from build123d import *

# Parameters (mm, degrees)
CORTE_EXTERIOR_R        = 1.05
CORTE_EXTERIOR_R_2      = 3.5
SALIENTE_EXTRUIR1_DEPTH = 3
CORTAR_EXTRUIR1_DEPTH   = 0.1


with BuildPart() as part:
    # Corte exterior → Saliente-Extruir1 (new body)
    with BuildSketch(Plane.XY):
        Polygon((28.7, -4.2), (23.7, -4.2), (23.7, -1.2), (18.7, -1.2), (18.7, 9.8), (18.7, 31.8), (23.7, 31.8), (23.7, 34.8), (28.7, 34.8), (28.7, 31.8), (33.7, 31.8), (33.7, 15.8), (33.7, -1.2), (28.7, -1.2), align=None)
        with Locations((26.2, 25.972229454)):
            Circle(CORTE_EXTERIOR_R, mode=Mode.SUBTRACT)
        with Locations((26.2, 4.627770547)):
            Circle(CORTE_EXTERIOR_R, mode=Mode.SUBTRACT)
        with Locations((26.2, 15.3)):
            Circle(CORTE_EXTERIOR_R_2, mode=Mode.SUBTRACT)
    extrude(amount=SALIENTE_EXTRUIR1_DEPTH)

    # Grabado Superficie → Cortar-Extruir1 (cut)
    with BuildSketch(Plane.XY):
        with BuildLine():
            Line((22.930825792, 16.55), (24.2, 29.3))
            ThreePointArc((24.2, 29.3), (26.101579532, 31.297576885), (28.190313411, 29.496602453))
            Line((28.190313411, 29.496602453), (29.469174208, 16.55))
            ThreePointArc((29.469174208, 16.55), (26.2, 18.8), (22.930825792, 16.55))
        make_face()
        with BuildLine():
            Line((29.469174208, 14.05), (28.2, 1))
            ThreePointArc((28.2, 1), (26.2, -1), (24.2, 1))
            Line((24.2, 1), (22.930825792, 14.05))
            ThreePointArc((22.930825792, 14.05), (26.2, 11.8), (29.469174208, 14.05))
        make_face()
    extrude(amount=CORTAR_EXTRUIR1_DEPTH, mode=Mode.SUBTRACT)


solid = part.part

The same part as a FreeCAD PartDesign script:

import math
import FreeCAD as App
import Part
import Sketcher

V = App.Vector
Q = App.Units.Quantity


def add_polygon(sketch, points):
    """Adds a closed chain of lines whose ends are joined by coincident constraints."""
    first, n = sketch.GeometryCount, len(points)
    for a, b in zip(points, points[1:] + points[:1]):
        sketch.addGeometry(Part.LineSegment(App.Vector(*a, 0), App.Vector(*b, 0)), False)
    for i in range(n):
        sketch.addConstraint(Sketcher.Constraint("Coincident", first + i, 2, first + (i + 1) % n, 1))

doc = App.newDocument("Part")
body = doc.addObject("PartDesign::Body", "Body")

# Sketch on XY plane
sketch1 = body.newObject("Sketcher::SketchObject", "Sketch")
sketch1.AttachmentSupport = (doc.getObject("XY_Plane"), [""])
sketch1.MapMode = "FlatFace"
add_polygon(sketch1, [(23.7, -4.2), (28.7, -4.2), (28.7, -1.2), (33.7, -1.2), (33.7, 31.8), (28.7, 31.8), (28.7, 34.8), (23.7, 34.8), (23.7, 31.8), (18.7, 31.8), (18.7, -1.2), (23.7, -1.2)])  # lines 0-11
sketch1.addGeometry(Part.Circle(V(26.2, 4.6, 0), V(0, 0, 1), 1.1), False)  # 12
sketch1.addGeometry(Part.Circle(V(26.2, 15.3, 0), V(0, 0, 1), 3.5), False)  # 13
sketch1.addGeometry(Part.Circle(V(26.2, 26, 0), V(0, 0, 1), 1.1), False)  # 14
sketch1.addConstraint([
    Sketcher.Constraint("Horizontal", 0),
    Sketcher.Constraint("Vertical", 1),
    Sketcher.Constraint("Horizontal", 2),
    Sketcher.Constraint("Vertical", 3),
    Sketcher.Constraint("Horizontal", 4),
    Sketcher.Constraint("Vertical", 5),
    Sketcher.Constraint("Horizontal", 6),
    Sketcher.Constraint("Vertical", 7),
    Sketcher.Constraint("Horizontal", 8),
    Sketcher.Constraint("Vertical", 9),
    Sketcher.Constraint("Horizontal", 10),
    Sketcher.Constraint("Vertical", 11),
    Sketcher.Constraint("Equal", 12, 14),
    Sketcher.Constraint("Horizontal", 4, 2, 7, 2),
    Sketcher.Constraint("Horizontal", 2, 2, 9, 2),
    Sketcher.Constraint("Vertical", 12, 3, 13, 3),
    Sketcher.Constraint("Vertical", 13, 3, 14, 3),
    Sketcher.Constraint("Vertical", 1, 2, 4, 2),
    Sketcher.Constraint("Vertical", 7, 2, 10, 2),
    Sketcher.Constraint("Equal", 0, 2),
    Sketcher.Constraint("Equal", 6, 8),
    Sketcher.Constraint("Equal", 1, 5),
    Sketcher.Constraint("Diameter", 13, Q("7 mm")),
    Sketcher.Constraint("Diameter", 12, Q("2.1 mm")),
    Sketcher.Constraint("DistanceX", 0, 1, 0, 2, Q("5 mm")),
    Sketcher.Constraint("DistanceY", 1, 1, 1, 2, Q("3 mm")),
    Sketcher.Constraint("DistanceY", 3, 1, 3, 2, Q("33 mm")),
    Sketcher.Constraint("DistanceX", -1, 1, 12, 3, Q("26.2 mm")),
    Sketcher.Constraint("DistanceY", -1, 1, 13, 3, Q("15.3 mm")),
    Sketcher.Constraint("DistanceX", -1, 1, 0, 2, Q("28.7 mm")),
    Sketcher.Constraint("DistanceY", 0, 2, -1, 1, Q("4.2 mm")),
    Sketcher.Constraint("DistanceY", -1, 1, 12, 3, Q("4.627771 mm")),
    Sketcher.Constraint("DistanceY", -1, 1, 14, 3, Q("25.972229 mm")),
])
pad1 = body.newObject("PartDesign::Pad", "Pad")
pad1.Profile = sketch1
pad1.Length = 3

# Sketch on XY plane
sketch2 = body.newObject("Sketcher::SketchObject", "Sketch001")
sketch2.AttachmentSupport = (doc.getObject("XY_Plane"), [""])
sketch2.MapMode = "FlatFace"
sketch2.addGeometry([
    Part.LineSegment(V(24.2, 29.3, 0), V(22.9, 16.6, 0)),  # 0
    Part.ArcOfCircle(Part.Circle(V(26.2, 15.3, 0), V(0, 0, 1), 3.5), math.radians(21), math.radians(159)),  # 1
    Part.LineSegment(V(29.5, 16.6, 0), V(28.2, 29.5, 0)),  # 2
    Part.ArcOfCircle(Part.Circle(V(26.2, 29.3, 0), V(0, 0, 1), 2), math.radians(6), math.radians(180)),  # 3
    Part.LineSegment(V(28.2, 1, 0), V(29.5, 14.1, 0)),  # 4
    Part.ArcOfCircle(Part.Circle(V(26.2, 15.3, 0), V(0, 0, 1), 3.5), math.radians(-159), math.radians(-21)),  # 5
    Part.LineSegment(V(22.9, 14.1, 0), V(24.2, 1, 0)),  # 6
    Part.ArcOfCircle(Part.Circle(V(26.2, 1, 0), V(0, 0, 1), 2), math.radians(180), math.radians(360)),  # 7
], False)
sketch2.addConstraint([
    Sketcher.Constraint("Coincident", 0, 2, 1, 2),
    Sketcher.Constraint("Coincident", 1, 1, 2, 1),
    Sketcher.Constraint("Tangent", 2, 2, 3, 1),
    Sketcher.Constraint("Coincident", 3, 2, 0, 1),
    Sketcher.Constraint("Coincident", 4, 2, 5, 2),
    Sketcher.Constraint("Coincident", 5, 1, 6, 1),
    Sketcher.Constraint("Coincident", 6, 2, 7, 1),
    Sketcher.Constraint("Coincident", 7, 2, 4, 1),
    Sketcher.Constraint("Coincident", 5, 3, 1, 3),
    Sketcher.Constraint("Equal", 1, 5),
    Sketcher.Constraint("Equal", 3, 7),
    Sketcher.Constraint("Horizontal", 0, 2, 1, 1),
    Sketcher.Constraint("Horizontal", 4, 2, 5, 1),
    Sketcher.Constraint("Horizontal", 7, 3, 6, 2),
    Sketcher.Constraint("Horizontal", 6, 2, 7, 2),
    Sketcher.Constraint("Vertical", 1, 3, 3, 3),
    Sketcher.Constraint("Vertical", 5, 3, 7, 3),
    Sketcher.Constraint("Vertical", 1, 1, 4, 2),
    Sketcher.Constraint("Radius", 3, Q("2 mm")),
    Sketcher.Constraint("Radius", 1, Q("3.5 mm")),
    Sketcher.Constraint("DistanceY", -1, 1, 7, 3, Q("1 mm")),
    Sketcher.Constraint("DistanceY", 1, 3, 3, 3, Q("14 mm")),
    Sketcher.Constraint("DistanceY", 5, 3, 3, 2, Q("14 mm")),
    Sketcher.Constraint("DistanceX", -1, 1, 1, 3, Q("26.2 mm")),
    Sketcher.Constraint("DistanceY", -1, 1, 1, 3, Q("15.3 mm")),
    Sketcher.Constraint("DistanceY", 4, 2, 1, 1, Q("2.5 mm")),
])
pocket1 = body.newObject("PartDesign::Pocket", "Pocket")
pocket1.Profile = sketch2
pocket1.Length = 0.1
pocket1.Reversed = True

doc.recompute()
